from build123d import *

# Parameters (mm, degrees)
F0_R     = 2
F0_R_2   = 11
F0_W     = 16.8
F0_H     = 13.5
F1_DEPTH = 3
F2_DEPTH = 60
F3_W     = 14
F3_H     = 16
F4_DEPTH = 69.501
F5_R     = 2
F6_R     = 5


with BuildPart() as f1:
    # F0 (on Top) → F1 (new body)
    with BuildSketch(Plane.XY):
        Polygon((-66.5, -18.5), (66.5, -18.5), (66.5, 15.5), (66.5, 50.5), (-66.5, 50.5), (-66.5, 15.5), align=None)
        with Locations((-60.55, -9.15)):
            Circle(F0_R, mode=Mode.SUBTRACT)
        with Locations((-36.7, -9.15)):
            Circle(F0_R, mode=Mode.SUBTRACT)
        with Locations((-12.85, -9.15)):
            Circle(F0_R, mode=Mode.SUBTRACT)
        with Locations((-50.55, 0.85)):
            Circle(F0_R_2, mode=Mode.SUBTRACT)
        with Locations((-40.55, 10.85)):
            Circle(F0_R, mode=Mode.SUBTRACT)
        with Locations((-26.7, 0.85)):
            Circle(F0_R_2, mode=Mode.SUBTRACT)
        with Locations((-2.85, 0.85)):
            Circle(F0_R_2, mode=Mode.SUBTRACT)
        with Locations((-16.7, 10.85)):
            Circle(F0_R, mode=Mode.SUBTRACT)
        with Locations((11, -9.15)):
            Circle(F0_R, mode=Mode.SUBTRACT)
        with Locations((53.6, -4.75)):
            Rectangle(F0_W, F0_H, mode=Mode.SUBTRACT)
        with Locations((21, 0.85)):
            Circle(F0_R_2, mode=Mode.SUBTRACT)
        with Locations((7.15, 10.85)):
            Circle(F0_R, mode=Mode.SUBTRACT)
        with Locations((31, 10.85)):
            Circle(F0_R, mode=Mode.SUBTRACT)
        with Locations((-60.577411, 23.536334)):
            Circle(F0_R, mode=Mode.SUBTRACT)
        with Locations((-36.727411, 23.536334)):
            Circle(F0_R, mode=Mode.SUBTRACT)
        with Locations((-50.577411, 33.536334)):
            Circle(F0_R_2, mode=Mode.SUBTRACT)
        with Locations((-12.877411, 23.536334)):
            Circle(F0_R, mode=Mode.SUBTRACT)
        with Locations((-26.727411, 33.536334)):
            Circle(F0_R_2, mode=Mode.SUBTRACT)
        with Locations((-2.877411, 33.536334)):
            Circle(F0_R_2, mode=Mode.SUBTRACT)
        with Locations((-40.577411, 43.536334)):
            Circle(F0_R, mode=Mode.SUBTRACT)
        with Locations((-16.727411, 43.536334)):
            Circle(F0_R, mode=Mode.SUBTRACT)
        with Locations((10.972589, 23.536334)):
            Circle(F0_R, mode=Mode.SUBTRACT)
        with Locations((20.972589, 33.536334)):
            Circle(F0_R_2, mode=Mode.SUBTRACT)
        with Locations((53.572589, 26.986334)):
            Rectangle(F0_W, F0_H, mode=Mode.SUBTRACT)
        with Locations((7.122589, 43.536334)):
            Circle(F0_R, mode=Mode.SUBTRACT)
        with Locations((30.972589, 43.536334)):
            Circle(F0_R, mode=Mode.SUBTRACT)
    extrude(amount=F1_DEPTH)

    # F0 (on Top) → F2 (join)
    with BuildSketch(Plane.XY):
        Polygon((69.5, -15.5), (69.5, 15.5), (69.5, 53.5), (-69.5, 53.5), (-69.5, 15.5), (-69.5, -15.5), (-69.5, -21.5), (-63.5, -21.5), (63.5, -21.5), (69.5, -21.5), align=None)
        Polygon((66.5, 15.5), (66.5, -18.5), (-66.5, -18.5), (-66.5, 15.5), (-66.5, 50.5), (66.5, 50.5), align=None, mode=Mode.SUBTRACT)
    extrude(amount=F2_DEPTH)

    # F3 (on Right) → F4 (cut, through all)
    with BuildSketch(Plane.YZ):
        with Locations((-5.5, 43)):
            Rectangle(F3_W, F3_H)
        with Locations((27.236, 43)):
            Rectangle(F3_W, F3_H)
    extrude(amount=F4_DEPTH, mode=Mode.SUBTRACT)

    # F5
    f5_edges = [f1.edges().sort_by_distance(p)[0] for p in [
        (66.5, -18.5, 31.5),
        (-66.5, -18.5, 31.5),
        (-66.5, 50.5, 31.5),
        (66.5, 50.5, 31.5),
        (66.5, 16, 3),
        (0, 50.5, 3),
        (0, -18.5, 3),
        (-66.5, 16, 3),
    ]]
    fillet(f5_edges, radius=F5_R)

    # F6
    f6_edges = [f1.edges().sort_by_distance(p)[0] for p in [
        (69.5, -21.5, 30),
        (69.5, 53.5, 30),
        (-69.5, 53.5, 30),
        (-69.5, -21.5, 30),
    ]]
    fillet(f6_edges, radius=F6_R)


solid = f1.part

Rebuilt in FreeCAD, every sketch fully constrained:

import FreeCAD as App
import Part
import Sketcher

V = App.Vector
Q = App.Units.Quantity


def edges_at(feature, points):
    """Names of the edges that pass closest to the given points."""
    edges = feature.Shape.Edges
    near = lambda p: min(range(len(edges)), key=lambda i: edges[i].distToShape(Part.Vertex(*p))[0])
    return sorted({f"Edge{near(p) + 1}" for p in points})


def add_polygon(sketch, points):
    """Adds a closed chain of lines whose ends are joined by coincident constraints."""
    first, n = sketch.GeometryCount, len(points)
    for a, b in zip(points, points[1:] + points[:1]):
        sketch.addGeometry(Part.LineSegment(App.Vector(*a, 0), App.Vector(*b, 0)), False)
    for i in range(n):
        sketch.addConstraint(Sketcher.Constraint("Coincident", first + i, 2, first + (i + 1) % n, 1))

doc = App.newDocument("Part")
params = doc.addObject("Spreadsheet::Sheet", "Params")
for row, (alias, value) in enumerate([
    ("sketch1_diameter", "4 mm"),
    ("sketch1_diameter2", "22 mm"),
    ("sketch1_width", "133 mm"),
    ("sketch1_height", "69 mm"),
    ("sketch1_width2", "16.8 mm"),
    ("pad1_length", "3 mm"),
    ("sketch2_width", "139 mm"),
    ("sketch2_width2", "133 mm"),
    ("sketch2_height", "75 mm"),
    ("sketch2_height2", "69 mm"),
    ("pad2_length", "60 mm"),
    ("sketch3_width", "14 mm"),
    ("sketch3_height", "16 mm"),
    ("fillet_radius", "2 mm"),
    ("fillet2_radius", "5 mm"),
], start=1):
    params.set(f"A{row}", alias)
    params.set(f"B{row}", "=" + value)
    params.setAlias(f"B{row}", alias)

body = doc.addObject("PartDesign::Body", "Body")

# Sketch on XY plane
sketch1 = body.newObject("Sketcher::SketchObject", "Sketch")
sketch1.AttachmentSupport = (doc.getObject("XY_Plane"), [""])
sketch1.MapMode = "FlatFace"
add_polygon(sketch1, [(-66.5, -18.5), (66.5, -18.5), (66.5, 50.5), (-66.5, 50.5)])  # lines 0-3
sketch1.addGeometry(Part.Circle(V(-60.5, -9.2, 0), V(0, 0, 1), 2), False)  # 4
sketch1.addGeometry(Part.Circle(V(-36.7, -9.2, 0), V(0, 0, 1), 2), False)  # 5
sketch1.addGeometry(Part.Circle(V(-50.5, 0.8, 0), V(0, 0, 1), 11), False)  # 6
sketch1.addGeometry(Part.Circle(V(-12.8, -9.2, 0), V(0, 0, 1), 2), False)  # 7
sketch1.addGeometry(Part.Circle(V(-26.7, 0.8, 0), V(0, 0, 1), 11), False)  # 8
sketch1.addGeometry(Part.Circle(V(-2.9, 0.8, 0), V(0, 0, 1), 11), False)  # 9
sketch1.addGeometry(Part.Circle(V(-40.5, 10.8, 0), V(0, 0, 1), 2), False)  # 10
sketch1.addGeometry(Part.Circle(V(-16.7, 10.8, 0), V(0, 0, 1), 2), False)  # 11
sketch1.addGeometry(Part.Circle(V(11, -9.2, 0), V(0, 0, 1), 2), False)  # 12
sketch1.addGeometry(Part.Circle(V(21, 0.8, 0), V(0, 0, 1), 11), False)  # 13
add_polygon(sketch1, [(62, -11.5), (45.2, -11.5), (45.2, 2), (62, 2)])  # lines 14-17
sketch1.addGeometry(Part.Circle(V(7.2, 10.8, 0), V(0, 0, 1), 2), False)  # 18
sketch1.addGeometry(Part.Circle(V(31, 10.8, 0), V(0, 0, 1), 2), False)  # 19
sketch1.addGeometry(Part.Circle(V(-60.6, 23.5, 0), V(0, 0, 1), 2), False)  # 20
sketch1.addGeometry(Part.Circle(V(-36.7, 23.5, 0), V(0, 0, 1), 2), False)  # 21
sketch1.addGeometry(Part.Circle(V(-12.9, 23.5, 0), V(0, 0, 1), 2), False)  # 22
sketch1.addGeometry(Part.Circle(V(-50.6, 33.5, 0), V(0, 0, 1), 11), False)  # 23
sketch1.addGeometry(Part.Circle(V(-40.6, 43.5, 0), V(0, 0, 1), 2), False)  # 24
sketch1.addGeometry(Part.Circle(V(-26.7, 33.5, 0), V(0, 0, 1), 11), False)  # 25
sketch1.addGeometry(Part.Circle(V(-2.9, 33.5, 0), V(0, 0, 1), 11), False)  # 26
sketch1.addGeometry(Part.Circle(V(-16.7, 43.5, 0), V(0, 0, 1), 2), False)  # 27
sketch1.addGeometry(Part.Circle(V(11, 23.5, 0), V(0, 0, 1), 2), False)  # 28
add_polygon(sketch1, [(62, 20.2), (45.2, 20.2), (45.2, 33.7), (62, 33.7)])  # lines 29-32
sketch1.addGeometry(Part.Circle(V(21, 33.5, 0), V(0, 0, 1), 11), False)  # 33
sketch1.addGeometry(Part.Circle(V(7.1, 43.5, 0), V(0, 0, 1), 2), False)  # 34
sketch1.addGeometry(Part.Circle(V(31, 43.5, 0), V(0, 0, 1), 2), False)  # 35
sketch1.addConstraint([
    Sketcher.Constraint("Horizontal", 0),
    Sketcher.Constraint("Vertical", 1),
    Sketcher.Constraint("Horizontal", 2),
    Sketcher.Constraint("Vertical", 3),
    Sketcher.Constraint("Horizontal", 14),
    Sketcher.Constraint("Vertical", 15),
    Sketcher.Constraint("Horizontal", 16),
    Sketcher.Constraint("Vertical", 17),
    Sketcher.Constraint("Horizontal", 29),
    Sketcher.Constraint("Vertical", 30),
    Sketcher.Constraint("Horizontal", 31),
    Sketcher.Constraint("Vertical", 32),
    Sketcher.Constraint("Equal", 4, 5),
    Sketcher.Constraint("Equal", 5, 7),
    Sketcher.Constraint("Equal", 6, 8),
    Sketcher.Constraint("Equal", 8, 9),
    Sketcher.Constraint("Equal", 7, 10),
    Sketcher.Constraint("Equal", 10, 11),
    Sketcher.Constraint("Equal", 11, 12),
    Sketcher.Constraint("Equal", 9, 13),
    Sketcher.Constraint("Equal", 12, 18),
    Sketcher.Constraint("Equal", 18, 19),
    Sketcher.Constraint("Equal", 19, 20),
    Sketcher.Constraint("Equal", 20, 21),
    Sketcher.Constraint("Equal", 21, 22),
    Sketcher.Constraint("Equal", 13, 23),
    Sketcher.Constraint("Equal", 22, 24),
    Sketcher.Constraint("Equal", 23, 25),
    Sketcher.Constraint("Equal", 25, 26),
    Sketcher.Constraint("Equal", 24, 27),
    Sketcher.Constraint("Equal", 27, 28),
    Sketcher.Constraint("Equal", 26, 33),
    Sketcher.Constraint("Equal", 28, 34),
    Sketcher.Constraint("Equal", 34, 35),
    Sketcher.Constraint("Horizontal", 4, 3, 5, 3),
    Sketcher.Constraint("Horizontal", 5, 3, 7, 3),
    Sketcher.Constraint("Horizontal", 6, 3, 8, 3),
    Sketcher.Constraint("Horizontal", 8, 3, 9, 3),
    Sketcher.Constraint("Horizontal", 10, 3, 11, 3),
    Sketcher.Constraint("Horizontal", 7, 3, 12, 3),
    Sketcher.Constraint("Horizontal", 9, 3, 13, 3),
    Sketcher.Constraint("Horizontal", 11, 3, 18, 3),
    Sketcher.Constraint("Horizontal", 18, 3, 19, 3),
    Sketcher.Constraint("Horizontal", 20, 3, 21, 3),
    Sketcher.Constraint("Horizontal", 21, 3, 22, 3),
    Sketcher.Constraint("Horizontal", 23, 3, 25, 3),
    Sketcher.Constraint("Horizontal", 25, 3, 26, 3),
    Sketcher.Constraint("Horizontal", 24, 3, 27, 3),
    Sketcher.Constraint("Horizontal", 22, 3, 28, 3),
    Sketcher.Constraint("Horizontal", 26, 3, 33, 3),
    Sketcher.Constraint("Horizontal", 27, 3, 34, 3),
    Sketcher.Constraint("Horizontal", 34, 3, 35, 3),
    Sketcher.Constraint("Equal", 16, 29),
    Sketcher.Constraint("Equal", 17, 30),
    Sketcher.Constraint("Diameter", 4, Q("4 mm")),
    Sketcher.Constraint("Diameter", 6, Q("22 mm")),
    Sketcher.Constraint("DistanceX", 0, 1, 0, 2, Q("133 mm")),
    Sketcher.Constraint("DistanceY", 1, 1, 1, 2, Q("69 mm")),
    Sketcher.Constraint("DistanceX", 14, 2, 14, 1, Q("16.8 mm")),
    Sketcher.Constraint("DistanceY", 15, 1, 15, 2, Q("13.5 mm")),
    Sketcher.Constraint("DistanceX", -1, 1, 12, 3, Q("11 mm")),
    Sketcher.Constraint("DistanceX", -1, 1, 13, 3, Q("21 mm")),
    Sketcher.Constraint("DistanceX", -1, 1, 19, 3, Q("31 mm")),
    Sketcher.Constraint("DistanceY", -1, 1, 15, 2, Q("2 mm")),
    Sketcher.Constraint("DistanceX", -1, 1, 16, 2, Q("62 mm")),
    Sketcher.Constraint("DistanceX", 4, 3, 6, 3, Q("10 mm")),
    Sketcher.Constraint("DistanceY", 4, 3, 6, 3, Q("10 mm")),
    Sketcher.Constraint("DistanceX", 5, 3, 8, 3, Q("10 mm")),
    Sketcher.Constraint("DistanceX", 7, 3, 9, 3, Q("10 mm")),
    Sketcher.Constraint("DistanceX", 6, 3, 10, 3, Q("10 mm")),
    Sketcher.Constraint("DistanceY", 6, 3, 10, 3, Q("10 mm")),
    Sketcher.Constraint("DistanceX", 8, 3, 11, 3, Q("10 mm")),
    Sketcher.Constraint("DistanceX", 9, 3, 18, 3, Q("10 mm")),
    Sketcher.Constraint("DistanceX", 20, 3, 23, 3, Q("10 mm")),
    Sketcher.Constraint("DistanceY", 20, 3, 23, 3, Q("10 mm")),
    Sketcher.Constraint("DistanceX", 23, 3, 24, 3, Q("10 mm")),
    Sketcher.Constraint("DistanceY", 23, 3, 24, 3, Q("10 mm")),
    Sketcher.Constraint("DistanceX", 21, 3, 25, 3, Q("10 mm")),
    Sketcher.Constraint("DistanceX", 22, 3, 26, 3, Q("10 mm")),
    Sketcher.Constraint("DistanceX", 25, 3, 27, 3, Q("10 mm")),
    Sketcher.Constraint("DistanceX", 28, 3, 33, 3, Q("10 mm")),
    Sketcher.Constraint("DistanceX", 26, 3, 34, 3, Q("10 mm")),
    Sketcher.Constraint("DistanceX", 33, 3, 35, 3, Q("10 mm")),
    Sketcher.Constraint("DistanceY", 0, 2, 14, 2, Q("7 mm")),
    Sketcher.Constraint("DistanceX", 35, 3, 31, 2, Q("31 mm")),
    Sketcher.Constraint("DistanceX", 5, 3, -1, 1, Q("36.7 mm")),
    Sketcher.Constraint("DistanceX", -1, 1, 0, 2, Q("66.5 mm")),
    Sketcher.Constraint("DistanceX", 6, 3, 7, 3, Q("37.7 mm")),
    Sketcher.Constraint("DistanceX", 23, 3, 22, 3, Q("37.7 mm")),
    Sketcher.Constraint("DistanceY", 29, 2, 35, 3, Q("23.3 mm")),
    Sketcher.Constraint("DistanceX", 4, 3, -1, 1, Q("60.55 mm")),
    Sketcher.Constraint("DistanceY", 4, 3, -1, 1, Q("9.15 mm")),
    Sketcher.Constraint("DistanceX", 20, 3, 21, 3, Q("23.85 mm")),
    Sketcher.Constraint("DistanceX", 26, 3, 28, 3, Q("13.85 mm")),
    Sketcher.Constraint("DistanceX", 20, 3, -1, 1, Q("60.577411 mm")),
    Sketcher.Constraint("DistanceY", -1, 1, 20, 3, Q("23.536334 mm")),
])
sketch1.setExpression("Constraints[66]", "Params.sketch1_diameter")
sketch1.setExpression("Constraints[67]", "Params.sketch1_diameter2")
sketch1.setExpression("Constraints[68]", "Params.sketch1_width")
sketch1.setExpression("Constraints[69]", "Params.sketch1_height")
sketch1.setExpression("Constraints[70]", "Params.sketch1_width2")
pad1 = body.newObject("PartDesign::Pad", "Pad")
pad1.Profile = sketch1
pad1.setExpression("Length", "Params.pad1_length")

# Sketch on XY plane
sketch2 = body.newObject("Sketcher::SketchObject", "Sketch001")
sketch2.AttachmentSupport = (doc.getObject("XY_Plane"), [""])
sketch2.MapMode = "FlatFace"
add_polygon(sketch2, [(70, 54), (-70, 54), (-70, -22), (70, -22)])  # lines 0-3
add_polygon(sketch2, [(66, 50), (66, -18), (-66, -18), (-66, 50)])  # lines 4-7
sketch2.addConstraint([
    Sketcher.Constraint("Horizontal", 0),
    Sketcher.Constraint("Vertical", 1),
    Sketcher.Constraint("Horizontal", 2),
    Sketcher.Constraint("Vertical", 3),
    Sketcher.Constraint("Vertical", 4),
    Sketcher.Constraint("Horizontal", 5),
    Sketcher.Constraint("Vertical", 6),
    Sketcher.Constraint("Horizontal", 7),
    Sketcher.Constraint("DistanceX", 0, 2, 0, 1, Q("139 mm")),
    Sketcher.Constraint("DistanceX", 5, 2, 5, 1, Q("133 mm")),
    Sketcher.Constraint("DistanceY", 1, 2, 1, 1, Q("75 mm")),
    Sketcher.Constraint("DistanceY", 4, 2, 4, 1, Q("69 mm")),
    Sketcher.Constraint("DistanceX", 4, 2, 2, 2, Q("3 mm")),
    Sketcher.Constraint("DistanceY", 2, 2, 4, 2, Q("3 mm")),
    Sketcher.Constraint("DistanceX", 0, 2, -1, 1, Q("69.5 mm")),
    Sketcher.Constraint("DistanceY", -1, 1, 0, 2, Q("53.5 mm")),
])
sketch2.setExpression("Constraints[16]", "Params.sketch2_width")
sketch2.setExpression("Constraints[17]", "Params.sketch2_width2")
sketch2.setExpression("Constraints[18]", "Params.sketch2_height")
sketch2.setExpression("Constraints[19]", "Params.sketch2_height2")
pad2 = body.newObject("PartDesign::Pad", "Pad001")
pad2.Profile = sketch2
pad2.setExpression("Length", "Params.pad2_length")

# Sketch on YZ plane
sketch3 = body.newObject("Sketcher::SketchObject", "Sketch002")
sketch3.AttachmentSupport = (doc.getObject("YZ_Plane"), [""])
sketch3.MapMode = "FlatFace"
add_polygon(sketch3, [(-12, 51), (-12, 35), (2, 35), (2, 51)])  # lines 0-3
add_polygon(sketch3, [(20, 51), (20, 35), (34, 35), (34, 51)])  # lines 4-7
sketch3.addConstraint([
    Sketcher.Constraint("Vertical", 0),
    Sketcher.Constraint("Horizontal", 1),
    Sketcher.Constraint("Vertical", 2),
    Sketcher.Constraint("Horizontal", 3),
    Sketcher.Constraint("Vertical", 4),
    Sketcher.Constraint("Horizontal", 5),
    Sketcher.Constraint("Vertical", 6),
    Sketcher.Constraint("Horizontal", 7),
    Sketcher.Constraint("Horizontal", 1, 2, 4, 2),
    Sketcher.Constraint("Horizontal", 3, 2, 6, 2),
    Sketcher.Constraint("Equal", 3, 5),
    Sketcher.Constraint("DistanceX", 1, 1, 1, 2, Q("14 mm")),
    Sketcher.Constraint("DistanceY", 0, 2, 0, 1, Q("16 mm")),
    Sketcher.Constraint("DistanceY", -1, 1, 0, 2, Q("35 mm")),
    Sketcher.Constraint("DistanceX", 0, 2, -1, 1, Q("12.5 mm")),
    Sketcher.Constraint("DistanceX", -1, 1, 4, 2, Q("20.236 mm")),
])
sketch3.setExpression("Constraints[19]", "Params.sketch3_width")
sketch3.setExpression("Constraints[20]", "Params.sketch3_height")
pocket1 = body.newObject("PartDesign::Pocket", "Pocket")
pocket1.Profile = sketch3
pocket1.Type = "ThroughAll"
pocket1.Reversed = True
doc.recompute()

fillet = body.newObject("PartDesign::Fillet", "Fillet")
fillet.Base = (pocket1, edges_at(pocket1, [
    (66.5, -18.5, 31.5),
    (-66.5, -18.5, 31.5),
    (-66.5, 50.5, 31.5),
    (66.5, 50.5, 31.5),
    (66.5, 16, 3),
    (0, 50.5, 3),
    (0, -18.5, 3),
    (-66.5, 16, 3),
]))
fillet.setExpression("Radius", "Params.fillet_radius")
doc.recompute()

fillet2 = body.newObject("PartDesign::Fillet", "Fillet001")
fillet2.Base = (fillet, edges_at(fillet, [
    (69.5, -21.5, 30),
    (69.5, 53.5, 30),
    (-69.5, 53.5, 30),
    (-69.5, -21.5, 30),
]))
fillet2.setExpression("Radius", "Params.fillet2_radius")

doc.recompute()
